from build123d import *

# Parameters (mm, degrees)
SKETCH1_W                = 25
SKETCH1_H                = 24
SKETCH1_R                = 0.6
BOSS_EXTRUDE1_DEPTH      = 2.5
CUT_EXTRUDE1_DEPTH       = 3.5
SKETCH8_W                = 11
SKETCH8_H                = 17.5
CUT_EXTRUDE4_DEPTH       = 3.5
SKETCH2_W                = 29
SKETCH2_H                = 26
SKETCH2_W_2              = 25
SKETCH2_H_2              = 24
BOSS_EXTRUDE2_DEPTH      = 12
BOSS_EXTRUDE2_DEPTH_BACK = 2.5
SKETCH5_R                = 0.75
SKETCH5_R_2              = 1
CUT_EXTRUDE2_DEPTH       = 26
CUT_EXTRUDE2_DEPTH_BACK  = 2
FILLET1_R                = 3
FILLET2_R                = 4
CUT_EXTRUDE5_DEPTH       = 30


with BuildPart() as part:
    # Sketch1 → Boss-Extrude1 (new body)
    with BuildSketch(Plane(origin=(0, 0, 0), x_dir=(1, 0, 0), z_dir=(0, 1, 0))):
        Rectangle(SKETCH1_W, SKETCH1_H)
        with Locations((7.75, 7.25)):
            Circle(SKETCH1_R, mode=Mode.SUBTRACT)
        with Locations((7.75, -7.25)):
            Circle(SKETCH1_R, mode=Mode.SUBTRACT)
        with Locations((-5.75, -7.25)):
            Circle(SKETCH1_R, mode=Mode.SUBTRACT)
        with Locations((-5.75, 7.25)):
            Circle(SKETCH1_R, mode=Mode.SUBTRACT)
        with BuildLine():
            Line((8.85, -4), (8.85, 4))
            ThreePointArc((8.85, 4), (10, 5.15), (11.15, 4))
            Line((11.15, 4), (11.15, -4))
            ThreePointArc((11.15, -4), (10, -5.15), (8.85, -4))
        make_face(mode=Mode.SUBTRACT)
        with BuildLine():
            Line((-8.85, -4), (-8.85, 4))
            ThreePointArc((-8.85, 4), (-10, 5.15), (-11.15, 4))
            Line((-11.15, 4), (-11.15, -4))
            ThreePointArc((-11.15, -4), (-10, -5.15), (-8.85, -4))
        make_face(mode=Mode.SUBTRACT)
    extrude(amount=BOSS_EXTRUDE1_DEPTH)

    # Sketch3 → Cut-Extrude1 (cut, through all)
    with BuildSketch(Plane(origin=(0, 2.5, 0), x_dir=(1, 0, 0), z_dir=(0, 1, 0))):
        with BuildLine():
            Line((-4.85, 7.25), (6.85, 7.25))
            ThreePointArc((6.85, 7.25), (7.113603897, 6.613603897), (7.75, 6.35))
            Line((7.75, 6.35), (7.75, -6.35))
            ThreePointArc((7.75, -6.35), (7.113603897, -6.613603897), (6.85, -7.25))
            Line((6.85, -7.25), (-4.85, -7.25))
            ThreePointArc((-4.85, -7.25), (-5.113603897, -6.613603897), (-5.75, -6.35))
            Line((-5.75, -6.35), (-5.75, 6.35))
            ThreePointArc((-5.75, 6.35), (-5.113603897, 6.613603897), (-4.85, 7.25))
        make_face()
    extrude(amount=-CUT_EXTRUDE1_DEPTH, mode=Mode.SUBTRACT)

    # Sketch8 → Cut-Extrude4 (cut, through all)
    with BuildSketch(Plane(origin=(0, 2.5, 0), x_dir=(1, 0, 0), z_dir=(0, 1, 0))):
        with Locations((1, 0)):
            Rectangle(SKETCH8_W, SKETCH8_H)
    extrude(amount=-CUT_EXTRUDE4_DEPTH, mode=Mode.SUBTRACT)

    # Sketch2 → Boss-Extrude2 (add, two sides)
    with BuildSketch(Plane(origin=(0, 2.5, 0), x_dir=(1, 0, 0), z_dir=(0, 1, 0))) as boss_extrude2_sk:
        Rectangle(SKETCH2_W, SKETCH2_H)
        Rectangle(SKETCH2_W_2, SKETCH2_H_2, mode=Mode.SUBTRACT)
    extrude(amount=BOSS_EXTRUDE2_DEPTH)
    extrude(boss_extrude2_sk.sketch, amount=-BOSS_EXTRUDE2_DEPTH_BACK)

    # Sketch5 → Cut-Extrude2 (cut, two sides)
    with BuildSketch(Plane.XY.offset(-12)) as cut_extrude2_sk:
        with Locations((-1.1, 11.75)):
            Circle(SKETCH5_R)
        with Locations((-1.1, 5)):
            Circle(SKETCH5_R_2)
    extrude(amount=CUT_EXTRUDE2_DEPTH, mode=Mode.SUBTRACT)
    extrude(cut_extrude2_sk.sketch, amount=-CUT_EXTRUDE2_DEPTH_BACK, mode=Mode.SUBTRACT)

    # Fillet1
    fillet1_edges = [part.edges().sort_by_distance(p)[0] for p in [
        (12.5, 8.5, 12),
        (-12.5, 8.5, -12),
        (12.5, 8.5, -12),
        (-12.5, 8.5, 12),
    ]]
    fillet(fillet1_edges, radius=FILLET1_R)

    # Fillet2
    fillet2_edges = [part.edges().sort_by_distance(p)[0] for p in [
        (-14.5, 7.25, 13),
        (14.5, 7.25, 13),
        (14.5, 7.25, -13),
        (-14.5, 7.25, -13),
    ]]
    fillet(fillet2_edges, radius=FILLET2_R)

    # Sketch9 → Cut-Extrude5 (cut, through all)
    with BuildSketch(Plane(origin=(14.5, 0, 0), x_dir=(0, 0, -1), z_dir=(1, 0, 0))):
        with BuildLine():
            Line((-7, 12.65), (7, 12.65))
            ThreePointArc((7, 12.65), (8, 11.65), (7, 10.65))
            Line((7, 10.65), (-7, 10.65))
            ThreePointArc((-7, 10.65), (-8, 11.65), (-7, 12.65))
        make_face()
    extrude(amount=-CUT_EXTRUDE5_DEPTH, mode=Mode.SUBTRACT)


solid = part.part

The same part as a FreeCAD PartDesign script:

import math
import FreeCAD as App
import Part
import Sketcher


def edges_at(feature, points):
    """Names of the edges that pass closest to the given points."""
    edges = feature.Shape.Edges
    near = lambda p: min(range(len(edges)), key=lambda i: edges[i].distToShape(Part.Vertex(*p))[0])
    return sorted({f"Edge{near(p) + 1}" for p in points})


def add_polygon(sketch, points):
    """Adds a closed chain of lines whose ends are joined by coincident constraints."""
    first, n = sketch.GeometryCount, len(points)
    for a, b in zip(points, points[1:] + points[:1]):
        sketch.addGeometry(Part.LineSegment(App.Vector(*a, 0), App.Vector(*b, 0)), False)
    for i in range(n):
        sketch.addConstraint(Sketcher.Constraint("Coincident", first + i, 2, first + (i + 1) % n, 1))

doc = App.newDocument("Part")
body = doc.addObject("PartDesign::Body", "Body")

sketch1 = body.newObject("Sketcher::SketchObject", "Sketch")
sketch1.AttachmentSupport = (doc.getObject("XZ_Plane"), [""])
sketch1.MapMode = "FlatFace"
add_polygon(sketch1, [(-12.5, -12), (-12.5, 12), (12.5, 12), (12.5, -12)])
sketch1.addGeometry(Part.Circle(App.Vector(-5.8, 7.2, 0), App.Vector(0, 0, 1), 0.6), False)
sketch1.addGeometry(Part.Circle(App.Vector(7.8, 7.2, 0), App.Vector(0, 0, 1), 0.6), False)
sketch1.addGeometry(Part.LineSegment(App.Vector(-8.8, -4, 0), App.Vector(-8.8, 4, 0)), False)
sketch1.addGeometry(Part.ArcOfCircle(Part.Circle(App.Vector(-10, 4, 0), App.Vector(0, 0, 1), 1.1), math.radians(0), math.radians(180)), False)
sketch1.addGeometry(Part.LineSegment(App.Vector(-11.2, 4, 0), App.Vector(-11.2, -4, 0)), False)
sketch1.addGeometry(Part.ArcOfCircle(Part.Circle(App.Vector(-10, -4, 0), App.Vector(0, 0, 1), 1.1), math.radians(180), math.radians(360)), False)
sketch1.addGeometry(Part.Circle(App.Vector(-5.8, -7.2, 0), App.Vector(0, 0, 1), 0.6), False)
sketch1.addGeometry(Part.ArcOfCircle(Part.Circle(App.Vector(10, 4, 0), App.Vector(0, 0, 1), 1.1), math.radians(0), math.radians(180)), False)
sketch1.addGeometry(Part.LineSegment(App.Vector(8.8, 4, 0), App.Vector(8.8, -4, 0)), False)
sketch1.addGeometry(Part.ArcOfCircle(Part.Circle(App.Vector(10, -4, 0), App.Vector(0, 0, 1), 1.1), math.radians(180), math.radians(360)), False)
sketch1.addGeometry(Part.LineSegment(App.Vector(11.2, -4, 0), App.Vector(11.2, 4, 0)), False)
sketch1.addGeometry(Part.Circle(App.Vector(7.8, -7.2, 0), App.Vector(0, 0, 1), 0.6), False)
sketch1.addConstraint(Sketcher.Constraint("Tangent", 6, 2, 7, 1))
sketch1.addConstraint(Sketcher.Constraint("Tangent", 7, 2, 8, 1))
sketch1.addConstraint(Sketcher.Constraint("Tangent", 8, 2, 9, 1))
sketch1.addConstraint(Sketcher.Constraint("Tangent", 9, 2, 6, 1))
sketch1.addConstraint(Sketcher.Constraint("Tangent", 11, 2, 12, 1))
sketch1.addConstraint(Sketcher.Constraint("Tangent", 12, 2, 13, 1))
sketch1.addConstraint(Sketcher.Constraint("Tangent", 13, 2, 14, 1))
sketch1.addConstraint(Sketcher.Constraint("Tangent", 14, 2, 11, 1))
sketch1.addConstraint(Sketcher.Constraint("Vertical", 0))
sketch1.addConstraint(Sketcher.Constraint("Horizontal", 1))
sketch1.addConstraint(Sketcher.Constraint("Vertical", 2))
sketch1.addConstraint(Sketcher.Constraint("Horizontal", 3))
sketch1.addConstraint(Sketcher.Constraint("Vertical", 6))
sketch1.addConstraint(Sketcher.Constraint("Vertical", 8))
sketch1.addConstraint(Sketcher.Constraint("Vertical", 12))
sketch1.addConstraint(Sketcher.Constraint("Vertical", 14))
sketch1.addConstraint(Sketcher.Constraint("Equal", 4, 5))
sketch1.addConstraint(Sketcher.Constraint("Equal", 5, 10))
sketch1.addConstraint(Sketcher.Constraint("Equal", 9, 11))
sketch1.addConstraint(Sketcher.Constraint("Equal", 10, 15))
sketch1.addConstraint(Sketcher.Constraint("Symmetric", 9, 3, 11, 3, -1, 1))
sketch1.addConstraint(Sketcher.Constraint("Symmetric", 0, 2, 2, 2, -1, 1))
sketch1.addConstraint(Sketcher.Constraint("Symmetric", 4, 3, 10, 3, -1))
sketch1.addConstraint(Sketcher.Constraint("Symmetric", 5, 3, 15, 3, -1))
sketch1.addConstraint(Sketcher.Constraint("Horizontal", 4, 3, 5, 3))
sketch1.addConstraint(Sketcher.Constraint("Horizontal", 7, 3, 11, 3))
sketch1.addConstraint(Sketcher.Constraint("Horizontal", 9, 3, 13, 3))
sketch1.addConstraint(Sketcher.Constraint("Diameter", 4, 1.2))
sketch1.addConstraint(Sketcher.Constraint("DistanceX", 1, 1, 1, 2, 25.0))
sketch1.addConstraint(Sketcher.Constraint("DistanceY", 0, 1, 0, 2, 24.0))
sketch1.addConstraint(Sketcher.Constraint("DistanceY", 6, 1, 6, 2, 8.0))
sketch1.addConstraint(Sketcher.Constraint("Radius", 7, 1.15))
sketch1.addConstraint(Sketcher.Constraint("DistanceX", 7, 3, -1, 1, 10.0))
sketch1.addConstraint(Sketcher.Constraint("DistanceX", 4, 3, 5, 3, 13.5))
sketch1.addConstraint(Sketcher.Constraint("DistanceY", 10, 3, 4, 3, 14.5))
sketch1.addConstraint(Sketcher.Constraint("DistanceX", 6, 2, 4, 3, 3.1))
pad1 = body.newObject("PartDesign::Pad", "Pad")
pad1.Profile = sketch1
pad1.Length = 2.5
pad1.Reversed = True

sketch2 = body.newObject("Sketcher::SketchObject", "Sketch001")
sketch2.AttachmentSupport = (doc.getObject("XZ_Plane"), [""])
sketch2.MapMode = "FlatFace"
sketch2.AttachmentOffset = App.Placement(App.Vector(0, 0, -2.5), App.Rotation())
sketch2.addGeometry(Part.LineSegment(App.Vector(6.8, -7.2, 0), App.Vector(-4.8, -7.2, 0)), False)
sketch2.addGeometry(Part.ArcOfCircle(Part.Circle(App.Vector(-5.8, -7.2, 0), App.Vector(0, 0, 1), 0.9), math.radians(0), math.radians(90)), False)
sketch2.addGeometry(Part.LineSegment(App.Vector(-5.8, -6.3, 0), App.Vector(-5.8, 6.3, 0)), False)
sketch2.addGeometry(Part.ArcOfCircle(Part.Circle(App.Vector(-5.8, 7.2, 0), App.Vector(0, 0, 1), 0.9), math.radians(-90), math.radians(0)), False)
sketch2.addGeometry(Part.LineSegment(App.Vector(-4.8, 7.2, 0), App.Vector(6.8, 7.2, 0)), False)
sketch2.addGeometry(Part.ArcOfCircle(Part.Circle(App.Vector(7.8, 7.2, 0), App.Vector(0, 0, 1), 0.9), math.radians(180), math.radians(270)), False)
sketch2.addGeometry(Part.LineSegment(App.Vector(7.8, 6.3, 0), App.Vector(7.8, -6.3, 0)), False)
sketch2.addGeometry(Part.ArcOfCircle(Part.Circle(App.Vector(7.8, -7.2, 0), App.Vector(0, 0, 1), 0.9), math.radians(90), math.radians(180)), False)
sketch2.addConstraint(Sketcher.Constraint("Coincident", 0, 2, 1, 1))
sketch2.addConstraint(Sketcher.Constraint("Coincident", 1, 2, 2, 1))
sketch2.addConstraint(Sketcher.Constraint("Coincident", 2, 2, 3, 1))
sketch2.addConstraint(Sketcher.Constraint("Coincident", 3, 2, 4, 1))
sketch2.addConstraint(Sketcher.Constraint("Coincident", 4, 2, 5, 1))
sketch2.addConstraint(Sketcher.Constraint("Coincident", 5, 2, 6, 1))
sketch2.addConstraint(Sketcher.Constraint("Coincident", 6, 2, 7, 1))
sketch2.addConstraint(Sketcher.Constraint("Coincident", 7, 2, 0, 1))
sketch2.addConstraint(Sketcher.Constraint("Horizontal", 0))
sketch2.addConstraint(Sketcher.Constraint("Vertical", 2))
sketch2.addConstraint(Sketcher.Constraint("Horizontal", 4))
sketch2.addConstraint(Sketcher.Constraint("Vertical", 6))
sketch2.addConstraint(Sketcher.Constraint("Equal", 1, 3))
sketch2.addConstraint(Sketcher.Constraint("Equal", 3, 5))
sketch2.addConstraint(Sketcher.Constraint("Equal", 5, 7))
sketch2.addConstraint(Sketcher.Constraint("Symmetric", 1, 3, 3, 3, -1))
sketch2.addConstraint(Sketcher.Constraint("Symmetric", 5, 3, 7, 3, -1))
sketch2.addConstraint(Sketcher.Constraint("Horizontal", 3, 3, 5, 3))
sketch2.addConstraint(Sketcher.Constraint("Horizontal", 7, 3, 0, 2))
sketch2.addConstraint(Sketcher.Constraint("Horizontal", 5, 3, 3, 2))
sketch2.addConstraint(Sketcher.Constraint("Vertical", 3, 3, 1, 2))
sketch2.addConstraint(Sketcher.Constraint("Vertical", 7, 3, 5, 2))
sketch2.addConstraint(Sketcher.Constraint("Radius", 1, 0.9))
sketch2.addConstraint(Sketcher.Constraint("DistanceX", 0, 2, 0, 1, 11.7))
sketch2.addConstraint(Sketcher.Constraint("DistanceY", 2, 1, 2, 2, 12.7))
sketch2.addConstraint(Sketcher.Constraint("DistanceX", 1, 3, -1, 1, 5.75))
pocket1 = body.newObject("PartDesign::Pocket", "Pocket")
pocket1.Profile = sketch2
pocket1.Type = "ThroughAll"
pocket1.Reversed = True

sketch3 = body.newObject("Sketcher::SketchObject", "Sketch002")
sketch3.AttachmentSupport = (doc.getObject("XZ_Plane"), [""])
sketch3.MapMode = "FlatFace"
sketch3.AttachmentOffset = App.Placement(App.Vector(0, 0, -2.5), App.Rotation())
add_polygon(sketch3, [(-4, -9), (-4, 9), (6, 9), (6, -9)])
sketch3.addConstraint(Sketcher.Constraint("Vertical", 0))
sketch3.addConstraint(Sketcher.Constraint("Horizontal", 1))
sketch3.addConstraint(Sketcher.Constraint("Vertical", 2))
sketch3.addConstraint(Sketcher.Constraint("Horizontal", 3))
sketch3.addConstraint(Sketcher.Constraint("DistanceX", 1, 1, 1, 2, 11.0))
sketch3.addConstraint(Sketcher.Constraint("DistanceY", 0, 1, 0, 2, 17.5))
sketch3.addConstraint(Sketcher.Constraint("DistanceX", 0, 2, -1, 1, 4.5))
sketch3.addConstraint(Sketcher.Constraint("DistanceY", -1, 1, 0, 2, 8.75))
pocket2 = body.newObject("PartDesign::Pocket", "Pocket001")
pocket2.Profile = sketch3
pocket2.Type = "ThroughAll"
pocket2.Reversed = True

sketch4 = body.newObject("Sketcher::SketchObject", "Sketch003")
sketch4.AttachmentSupport = (doc.getObject("XZ_Plane"), [""])
sketch4.MapMode = "FlatFace"
sketch4.AttachmentOffset = App.Placement(App.Vector(0, 0, -2.5), App.Rotation())
add_polygon(sketch4, [(-14, -13), (-14, 13), (14, 13), (14, -13)])
add_polygon(sketch4, [(12, 12), (-12, 12), (-12, -12), (12, -12)])
sketch4.addConstraint(Sketcher.Constraint("Vertical", 0))
sketch4.addConstraint(Sketcher.Constraint("Horizontal", 1))
sketch4.addConstraint(Sketcher.Constraint("Vertical", 2))
sketch4.addConstraint(Sketcher.Constraint("Horizontal", 3))
sketch4.addConstraint(Sketcher.Constraint("Horizontal", 4))
sketch4.addConstraint(Sketcher.Constraint("Vertical", 5))
sketch4.addConstraint(Sketcher.Constraint("Horizontal", 6))
sketch4.addConstraint(Sketcher.Constraint("Vertical", 7))
sketch4.addConstraint(Sketcher.Constraint("Symmetric", 0, 2, 2, 2, -1, 1))
sketch4.addConstraint(Sketcher.Constraint("Symmetric", 4, 2, 6, 2, -1, 1))
sketch4.addConstraint(Sketcher.Constraint("DistanceX", 1, 1, 1, 2, 29.0))
sketch4.addConstraint(Sketcher.Constraint("DistanceX", 4, 2, 4, 1, 25.0))
sketch4.addConstraint(Sketcher.Constraint("DistanceY", 0, 1, 0, 2, 26.0))
sketch4.addConstraint(Sketcher.Constraint("DistanceY", 5, 2, 5, 1, 24.0))
pad2 = body.newObject("PartDesign::Pad", "Pad001")
pad2.Profile = sketch4
pad2.Type = "TwoLengths"
pad2.Length = 12
pad2.Length2 = 2.5
pad2.Reversed = True

sketch5 = body.newObject("Sketcher::SketchObject", "Sketch004")
sketch5.AttachmentSupport = (doc.getObject("XY_Plane"), [""])
sketch5.MapMode = "FlatFace"
sketch5.AttachmentOffset = App.Placement(App.Vector(0, 0, -12), App.Rotation())
sketch5.addGeometry(Part.Circle(App.Vector(-1.1, 11.8, 0), App.Vector(0, 0, 1), 0.8), False)
sketch5.addGeometry(Part.Circle(App.Vector(-1.1, 5, 0), App.Vector(0, 0, 1), 1), False)
sketch5.addConstraint(Sketcher.Constraint("Vertical", 0, 3, 1, 3))
sketch5.addConstraint(Sketcher.Constraint("Diameter", 1, 2.0))
sketch5.addConstraint(Sketcher.Constraint("Diameter", 0, 1.5))
sketch5.addConstraint(Sketcher.Constraint("DistanceY", -1, 1, 1, 3, 5.0))
sketch5.addConstraint(Sketcher.Constraint("DistanceX", 0, 3, -1, 1, 1.1))
sketch5.addConstraint(Sketcher.Constraint("DistanceY", -1, 1, 0, 3, 11.75))
pocket3 = body.newObject("PartDesign::Pocket", "Pocket002")
pocket3.Profile = sketch5
pocket3.Type = "ThroughAll"
pocket3.Midplane = True
doc.recompute()

fillet = body.newObject("PartDesign::Fillet", "Fillet")
fillet.Base = (pocket3, edges_at(pocket3, [
    (12.5, 8.5, 12),
    (-12.5, 8.5, -12),
    (12.5, 8.5, -12),
    (-12.5, 8.5, 12),
]))
fillet.Radius = 3
doc.recompute()

fillet2 = body.newObject("PartDesign::Fillet", "Fillet001")
fillet2.Base = (fillet, edges_at(fillet, [
    (-14.5, 7.25, 13),
    (14.5, 7.25, 13),
    (14.5, 7.25, -13),
    (-14.5, 7.25, -13),
]))
fillet2.Radius = 4

sketch6 = body.newObject("Sketcher::SketchObject", "Sketch005")
sketch6.AttachmentSupport = (doc.getObject("YZ_Plane"), [""])
sketch6.MapMode = "FlatFace"
sketch6.AttachmentOffset = App.Placement(App.Vector(0, 0, 14.5), App.Rotation())
sketch6.addGeometry(Part.LineSegment(App.Vector(12.7, -7, 0), App.Vector(12.7, 7, 0)), False)
sketch6.addGeometry(Part.ArcOfCircle(Part.Circle(App.Vector(11.7, 7, 0), App.Vector(0, 0, 1), 1), math.radians(0), math.radians(180)), False)
sketch6.addGeometry(Part.LineSegment(App.Vector(10.7, 7, 0), App.Vector(10.7, -7, 0)), False)
sketch6.addGeometry(Part.ArcOfCircle(Part.Circle(App.Vector(11.7, -7, 0), App.Vector(0, 0, 1), 1), math.radians(180), math.radians(360)), False)
sketch6.addConstraint(Sketcher.Constraint("Tangent", 0, 2, 1, 1))
sketch6.addConstraint(Sketcher.Constraint("Tangent", 1, 2, 2, 1))
sketch6.addConstraint(Sketcher.Constraint("Tangent", 2, 2, 3, 1))
sketch6.addConstraint(Sketcher.Constraint("Tangent", 3, 2, 0, 1))
sketch6.addConstraint(Sketcher.Constraint("Vertical", 0))
sketch6.addConstraint(Sketcher.Constraint("Vertical", 2))
sketch6.addConstraint(Sketcher.Constraint("Radius", 1, 1.0))
sketch6.addConstraint(Sketcher.Constraint("DistanceY", 0, 1, 0, 2, 14.0))
sketch6.addConstraint(Sketcher.Constraint("DistanceY", -1, 1, 1, 3, 7.0))
sketch6.addConstraint(Sketcher.Constraint("DistanceX", -1, 1, 1, 3, 11.65))
pocket4 = body.newObject("PartDesign::Pocket", "Pocket003")
pocket4.Profile = sketch6
pocket4.Type = "ThroughAll"

doc.recompute()
